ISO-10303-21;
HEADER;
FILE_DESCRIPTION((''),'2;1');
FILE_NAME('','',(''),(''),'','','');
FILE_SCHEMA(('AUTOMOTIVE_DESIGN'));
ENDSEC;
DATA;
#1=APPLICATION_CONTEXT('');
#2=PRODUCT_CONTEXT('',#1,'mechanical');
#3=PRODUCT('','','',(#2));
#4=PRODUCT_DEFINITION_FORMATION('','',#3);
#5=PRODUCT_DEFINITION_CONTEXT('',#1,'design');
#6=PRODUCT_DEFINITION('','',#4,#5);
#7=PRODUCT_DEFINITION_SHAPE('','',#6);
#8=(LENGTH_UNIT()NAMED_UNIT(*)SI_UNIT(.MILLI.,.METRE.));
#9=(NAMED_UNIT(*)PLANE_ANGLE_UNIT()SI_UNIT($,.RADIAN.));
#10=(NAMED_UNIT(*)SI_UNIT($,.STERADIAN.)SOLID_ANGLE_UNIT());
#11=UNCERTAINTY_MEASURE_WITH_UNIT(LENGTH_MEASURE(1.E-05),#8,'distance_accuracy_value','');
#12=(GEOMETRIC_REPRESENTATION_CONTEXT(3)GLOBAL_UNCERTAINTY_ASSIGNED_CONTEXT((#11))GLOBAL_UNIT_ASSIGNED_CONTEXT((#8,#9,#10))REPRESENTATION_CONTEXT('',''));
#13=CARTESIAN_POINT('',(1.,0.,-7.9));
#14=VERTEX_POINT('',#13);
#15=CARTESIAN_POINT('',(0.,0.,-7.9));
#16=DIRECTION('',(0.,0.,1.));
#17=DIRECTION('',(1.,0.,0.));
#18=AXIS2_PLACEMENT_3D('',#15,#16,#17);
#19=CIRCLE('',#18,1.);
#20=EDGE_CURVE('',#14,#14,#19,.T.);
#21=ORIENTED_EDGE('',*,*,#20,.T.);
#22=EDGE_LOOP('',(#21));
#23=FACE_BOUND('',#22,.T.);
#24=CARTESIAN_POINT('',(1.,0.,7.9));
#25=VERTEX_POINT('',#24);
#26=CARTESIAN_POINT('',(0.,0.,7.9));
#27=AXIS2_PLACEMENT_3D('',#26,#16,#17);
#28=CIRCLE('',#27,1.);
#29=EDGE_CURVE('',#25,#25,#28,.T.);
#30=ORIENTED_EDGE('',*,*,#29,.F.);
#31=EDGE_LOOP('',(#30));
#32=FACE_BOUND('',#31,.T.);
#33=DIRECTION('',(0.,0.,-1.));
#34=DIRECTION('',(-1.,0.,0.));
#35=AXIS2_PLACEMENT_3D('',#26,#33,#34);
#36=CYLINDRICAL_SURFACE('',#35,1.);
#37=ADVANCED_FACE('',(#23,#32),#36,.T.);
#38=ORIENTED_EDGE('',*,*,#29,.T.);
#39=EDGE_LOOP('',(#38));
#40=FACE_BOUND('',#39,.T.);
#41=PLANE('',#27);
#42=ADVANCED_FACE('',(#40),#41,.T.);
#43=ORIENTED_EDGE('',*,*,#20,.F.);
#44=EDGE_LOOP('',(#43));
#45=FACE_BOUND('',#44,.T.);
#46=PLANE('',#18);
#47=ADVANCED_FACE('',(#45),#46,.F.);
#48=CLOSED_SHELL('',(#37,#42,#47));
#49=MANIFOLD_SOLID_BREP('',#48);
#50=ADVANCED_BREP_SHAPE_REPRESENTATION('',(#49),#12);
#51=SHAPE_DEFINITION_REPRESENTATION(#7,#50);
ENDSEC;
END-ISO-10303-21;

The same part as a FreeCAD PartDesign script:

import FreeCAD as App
import Part
import Sketcher

doc = App.newDocument("Part")
body = doc.addObject("PartDesign::Body", "Body")

# Sketch on XY plane
sketch1 = body.newObject("Sketcher::SketchObject", "Sketch")
sketch1.AttachmentSupport = (doc.getObject("XY_Plane"), [""])
sketch1.MapMode = "FlatFace"
sketch1.addGeometry(Part.Circle(App.Vector(0, 0, 0), App.Vector(0, 0, 1), 1), False)
sketch1.addConstraint(Sketcher.Constraint("Coincident", 0, 3, -1, 1))
sketch1.addConstraint(Sketcher.Constraint("Diameter", 0, 2.0))
pad1 = body.newObject("PartDesign::Pad", "Pad")
pad1.Profile = sketch1
pad1.Length = 15.8
pad1.Midplane = True

doc.recompute()
